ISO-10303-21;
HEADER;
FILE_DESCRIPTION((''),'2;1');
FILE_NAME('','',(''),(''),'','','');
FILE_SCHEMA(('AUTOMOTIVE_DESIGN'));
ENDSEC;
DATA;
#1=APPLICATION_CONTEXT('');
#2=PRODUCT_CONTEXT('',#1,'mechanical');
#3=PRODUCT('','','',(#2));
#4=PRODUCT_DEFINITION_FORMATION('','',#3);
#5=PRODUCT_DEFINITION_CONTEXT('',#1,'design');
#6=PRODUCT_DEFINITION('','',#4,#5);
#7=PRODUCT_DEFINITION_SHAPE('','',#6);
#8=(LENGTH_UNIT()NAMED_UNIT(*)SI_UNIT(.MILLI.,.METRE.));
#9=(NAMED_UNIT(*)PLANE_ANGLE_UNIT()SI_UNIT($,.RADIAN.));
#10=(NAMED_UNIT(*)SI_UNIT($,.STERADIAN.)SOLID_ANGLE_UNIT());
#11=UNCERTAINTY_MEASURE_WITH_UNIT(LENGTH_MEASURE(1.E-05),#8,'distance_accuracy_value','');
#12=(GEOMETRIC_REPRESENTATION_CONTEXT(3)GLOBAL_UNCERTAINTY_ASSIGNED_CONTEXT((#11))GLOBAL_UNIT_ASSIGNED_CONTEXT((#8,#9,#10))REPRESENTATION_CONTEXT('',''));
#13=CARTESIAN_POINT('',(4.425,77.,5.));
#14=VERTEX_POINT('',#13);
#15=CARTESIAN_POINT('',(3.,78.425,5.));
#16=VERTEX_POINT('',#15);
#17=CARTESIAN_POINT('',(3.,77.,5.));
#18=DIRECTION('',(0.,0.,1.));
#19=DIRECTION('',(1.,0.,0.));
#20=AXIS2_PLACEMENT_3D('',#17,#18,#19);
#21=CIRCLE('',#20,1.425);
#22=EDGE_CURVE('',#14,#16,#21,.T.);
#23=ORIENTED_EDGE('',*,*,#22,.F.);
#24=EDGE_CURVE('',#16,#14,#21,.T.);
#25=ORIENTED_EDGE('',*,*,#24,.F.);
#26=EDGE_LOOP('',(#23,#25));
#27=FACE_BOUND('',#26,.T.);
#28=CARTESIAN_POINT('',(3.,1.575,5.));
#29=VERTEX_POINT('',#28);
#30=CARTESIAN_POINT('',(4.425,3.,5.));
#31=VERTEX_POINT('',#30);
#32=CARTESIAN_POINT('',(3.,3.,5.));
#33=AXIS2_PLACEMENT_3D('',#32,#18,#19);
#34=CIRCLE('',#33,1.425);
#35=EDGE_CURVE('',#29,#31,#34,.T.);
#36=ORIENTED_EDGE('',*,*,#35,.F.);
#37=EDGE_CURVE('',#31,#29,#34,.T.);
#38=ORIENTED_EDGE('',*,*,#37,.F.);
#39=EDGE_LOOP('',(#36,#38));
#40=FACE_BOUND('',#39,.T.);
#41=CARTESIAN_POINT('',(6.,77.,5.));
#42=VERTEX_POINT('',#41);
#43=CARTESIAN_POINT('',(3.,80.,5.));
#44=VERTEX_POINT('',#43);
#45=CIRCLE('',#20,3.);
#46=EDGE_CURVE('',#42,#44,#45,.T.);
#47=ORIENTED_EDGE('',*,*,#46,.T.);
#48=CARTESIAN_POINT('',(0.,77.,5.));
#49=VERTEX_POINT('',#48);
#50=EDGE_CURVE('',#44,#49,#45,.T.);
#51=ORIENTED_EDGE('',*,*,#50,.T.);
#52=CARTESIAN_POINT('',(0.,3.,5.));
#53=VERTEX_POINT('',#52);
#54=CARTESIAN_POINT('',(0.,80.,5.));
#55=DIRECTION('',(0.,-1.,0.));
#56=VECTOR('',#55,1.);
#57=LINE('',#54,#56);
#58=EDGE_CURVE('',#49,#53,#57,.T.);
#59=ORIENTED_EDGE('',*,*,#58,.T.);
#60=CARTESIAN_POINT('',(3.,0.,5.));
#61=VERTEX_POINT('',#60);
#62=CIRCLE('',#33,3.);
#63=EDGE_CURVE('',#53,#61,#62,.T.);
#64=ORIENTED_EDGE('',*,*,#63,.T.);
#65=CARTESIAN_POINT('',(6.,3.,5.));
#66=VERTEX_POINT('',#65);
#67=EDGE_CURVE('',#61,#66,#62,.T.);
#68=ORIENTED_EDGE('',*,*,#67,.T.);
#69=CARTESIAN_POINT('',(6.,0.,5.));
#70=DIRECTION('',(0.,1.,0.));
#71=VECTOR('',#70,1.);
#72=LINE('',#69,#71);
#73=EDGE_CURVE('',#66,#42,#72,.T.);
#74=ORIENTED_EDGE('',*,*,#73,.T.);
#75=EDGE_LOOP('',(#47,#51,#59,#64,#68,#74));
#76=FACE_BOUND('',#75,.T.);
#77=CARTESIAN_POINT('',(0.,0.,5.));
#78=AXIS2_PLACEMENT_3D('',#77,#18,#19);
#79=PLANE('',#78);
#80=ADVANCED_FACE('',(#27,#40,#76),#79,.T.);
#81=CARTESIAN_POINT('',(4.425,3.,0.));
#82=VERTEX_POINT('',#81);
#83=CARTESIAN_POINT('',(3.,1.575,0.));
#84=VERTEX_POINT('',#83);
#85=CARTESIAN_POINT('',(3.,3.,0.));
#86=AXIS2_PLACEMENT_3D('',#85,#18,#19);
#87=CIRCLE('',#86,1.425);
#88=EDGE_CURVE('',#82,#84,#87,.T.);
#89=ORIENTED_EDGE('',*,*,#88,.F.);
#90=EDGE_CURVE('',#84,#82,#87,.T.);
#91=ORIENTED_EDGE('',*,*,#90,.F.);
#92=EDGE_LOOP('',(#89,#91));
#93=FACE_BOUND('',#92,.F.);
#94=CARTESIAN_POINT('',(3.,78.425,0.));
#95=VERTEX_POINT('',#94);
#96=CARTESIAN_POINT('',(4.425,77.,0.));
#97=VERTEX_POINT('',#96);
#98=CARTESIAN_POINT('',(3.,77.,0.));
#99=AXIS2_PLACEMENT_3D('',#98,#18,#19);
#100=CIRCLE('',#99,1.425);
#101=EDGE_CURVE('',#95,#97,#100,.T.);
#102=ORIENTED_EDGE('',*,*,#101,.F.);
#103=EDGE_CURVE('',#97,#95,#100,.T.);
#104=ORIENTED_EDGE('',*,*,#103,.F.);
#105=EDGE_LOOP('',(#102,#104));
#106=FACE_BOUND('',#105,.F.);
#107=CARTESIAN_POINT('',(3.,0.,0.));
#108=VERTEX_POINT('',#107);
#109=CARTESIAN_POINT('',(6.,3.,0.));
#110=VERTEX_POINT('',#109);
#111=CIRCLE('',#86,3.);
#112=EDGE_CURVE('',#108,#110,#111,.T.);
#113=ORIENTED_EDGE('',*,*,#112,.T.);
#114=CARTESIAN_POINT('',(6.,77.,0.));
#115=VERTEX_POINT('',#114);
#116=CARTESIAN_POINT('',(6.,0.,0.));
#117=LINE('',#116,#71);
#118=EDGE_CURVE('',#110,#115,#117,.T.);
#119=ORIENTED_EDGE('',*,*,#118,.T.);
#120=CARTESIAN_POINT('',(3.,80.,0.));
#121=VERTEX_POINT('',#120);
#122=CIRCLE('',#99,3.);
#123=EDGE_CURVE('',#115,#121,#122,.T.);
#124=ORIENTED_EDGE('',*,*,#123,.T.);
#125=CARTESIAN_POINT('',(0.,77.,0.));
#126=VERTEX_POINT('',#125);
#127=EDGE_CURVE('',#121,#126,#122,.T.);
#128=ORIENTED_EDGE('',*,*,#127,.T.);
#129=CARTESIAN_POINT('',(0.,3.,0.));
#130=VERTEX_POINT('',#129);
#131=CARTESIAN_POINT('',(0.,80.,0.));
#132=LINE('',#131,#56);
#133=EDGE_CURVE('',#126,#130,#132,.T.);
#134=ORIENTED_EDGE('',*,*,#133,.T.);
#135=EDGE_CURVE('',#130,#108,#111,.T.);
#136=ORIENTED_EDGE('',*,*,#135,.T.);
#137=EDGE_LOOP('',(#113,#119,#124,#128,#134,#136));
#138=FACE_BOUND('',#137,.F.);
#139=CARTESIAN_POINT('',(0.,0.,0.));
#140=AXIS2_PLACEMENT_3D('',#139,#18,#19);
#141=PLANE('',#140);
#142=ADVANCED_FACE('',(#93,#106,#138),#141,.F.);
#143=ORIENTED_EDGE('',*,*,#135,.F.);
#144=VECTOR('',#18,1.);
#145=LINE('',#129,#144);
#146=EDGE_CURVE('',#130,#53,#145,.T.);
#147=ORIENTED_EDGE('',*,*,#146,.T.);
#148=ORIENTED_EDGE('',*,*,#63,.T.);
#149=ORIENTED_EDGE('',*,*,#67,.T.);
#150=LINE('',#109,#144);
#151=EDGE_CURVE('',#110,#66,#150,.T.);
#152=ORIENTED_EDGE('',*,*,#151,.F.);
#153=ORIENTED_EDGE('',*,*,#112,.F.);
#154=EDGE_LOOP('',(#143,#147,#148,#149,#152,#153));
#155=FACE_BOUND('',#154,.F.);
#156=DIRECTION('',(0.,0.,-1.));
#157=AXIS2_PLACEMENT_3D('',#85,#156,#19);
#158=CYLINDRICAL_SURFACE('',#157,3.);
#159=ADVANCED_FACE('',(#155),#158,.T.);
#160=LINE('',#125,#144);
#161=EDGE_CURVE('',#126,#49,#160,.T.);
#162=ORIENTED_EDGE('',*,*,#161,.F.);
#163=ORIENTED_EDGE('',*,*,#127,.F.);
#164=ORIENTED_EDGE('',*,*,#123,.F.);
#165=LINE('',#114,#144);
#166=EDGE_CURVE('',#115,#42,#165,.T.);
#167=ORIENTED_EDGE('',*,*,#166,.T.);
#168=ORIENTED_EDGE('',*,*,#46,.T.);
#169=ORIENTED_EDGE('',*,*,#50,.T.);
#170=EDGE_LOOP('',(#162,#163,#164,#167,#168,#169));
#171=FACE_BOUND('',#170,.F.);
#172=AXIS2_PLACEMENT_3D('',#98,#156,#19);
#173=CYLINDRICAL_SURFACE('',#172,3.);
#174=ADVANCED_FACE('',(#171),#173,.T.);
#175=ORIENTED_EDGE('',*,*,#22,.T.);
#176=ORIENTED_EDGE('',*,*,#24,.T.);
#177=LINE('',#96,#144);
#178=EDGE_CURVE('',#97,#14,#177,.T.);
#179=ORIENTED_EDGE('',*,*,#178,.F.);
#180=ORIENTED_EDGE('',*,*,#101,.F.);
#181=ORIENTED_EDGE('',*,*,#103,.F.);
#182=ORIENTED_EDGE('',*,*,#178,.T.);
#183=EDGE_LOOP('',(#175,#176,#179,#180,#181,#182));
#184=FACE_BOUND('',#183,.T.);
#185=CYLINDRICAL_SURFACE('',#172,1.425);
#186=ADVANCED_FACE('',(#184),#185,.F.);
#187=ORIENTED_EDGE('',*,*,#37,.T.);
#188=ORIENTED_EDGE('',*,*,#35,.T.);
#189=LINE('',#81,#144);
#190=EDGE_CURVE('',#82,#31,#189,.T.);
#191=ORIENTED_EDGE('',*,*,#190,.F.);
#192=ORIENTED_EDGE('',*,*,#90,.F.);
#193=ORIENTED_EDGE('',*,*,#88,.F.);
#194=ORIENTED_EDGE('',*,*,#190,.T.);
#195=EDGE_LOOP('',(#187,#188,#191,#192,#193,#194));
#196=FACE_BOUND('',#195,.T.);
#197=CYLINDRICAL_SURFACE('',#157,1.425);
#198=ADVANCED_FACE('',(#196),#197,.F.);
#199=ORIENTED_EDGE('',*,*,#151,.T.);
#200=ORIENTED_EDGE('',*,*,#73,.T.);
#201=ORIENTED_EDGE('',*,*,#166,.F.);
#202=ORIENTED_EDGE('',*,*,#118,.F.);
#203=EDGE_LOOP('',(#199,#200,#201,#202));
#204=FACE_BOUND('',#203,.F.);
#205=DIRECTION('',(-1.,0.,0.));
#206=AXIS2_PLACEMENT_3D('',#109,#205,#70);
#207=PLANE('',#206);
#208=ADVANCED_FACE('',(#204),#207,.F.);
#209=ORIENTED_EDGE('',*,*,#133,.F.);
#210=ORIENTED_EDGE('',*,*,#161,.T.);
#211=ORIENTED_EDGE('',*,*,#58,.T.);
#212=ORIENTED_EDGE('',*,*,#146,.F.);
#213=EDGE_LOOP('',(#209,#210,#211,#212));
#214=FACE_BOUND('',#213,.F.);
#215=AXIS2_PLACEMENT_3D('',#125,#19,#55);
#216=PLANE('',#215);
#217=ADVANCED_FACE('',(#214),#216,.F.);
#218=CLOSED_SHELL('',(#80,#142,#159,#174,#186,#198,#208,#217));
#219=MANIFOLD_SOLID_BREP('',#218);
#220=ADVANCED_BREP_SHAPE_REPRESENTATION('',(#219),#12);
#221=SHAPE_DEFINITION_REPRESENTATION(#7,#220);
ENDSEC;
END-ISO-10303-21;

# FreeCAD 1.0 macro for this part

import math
import FreeCAD as App
import Part
import Sketcher
Q = App.Units.Quantity

doc = App.newDocument("Part")
body = doc.addObject("PartDesign::Body", "Body")

# Sketch on XY plane
sketch1 = body.newObject("Sketcher::SketchObject", "Sketch")
sketch1.AttachmentSupport = (doc.getObject("XY_Plane"), [""])
sketch1.MapMode = "FlatFace"
sketch1.addGeometry(Part.ArcOfCircle(Part.Circle(App.Vector(3, 3, 0), App.Vector(0, 0, 1), 3), math.radians(180), math.radians(270)), False)
sketch1.addGeometry(Part.ArcOfCircle(Part.Circle(App.Vector(3, 3, 0), App.Vector(0, 0, 1), 3), math.radians(-90), math.radians(0)), False)
sketch1.addGeometry(Part.LineSegment(App.Vector(6, 3, 0), App.Vector(6, 77, 0)), False)
sketch1.addGeometry(Part.ArcOfCircle(Part.Circle(App.Vector(3, 77, 0), App.Vector(0, 0, 1), 3), math.radians(0), math.radians(90)), False)
sketch1.addGeometry(Part.ArcOfCircle(Part.Circle(App.Vector(3, 77, 0), App.Vector(0, 0, 1), 3), math.radians(90), math.radians(180)), False)
sketch1.addGeometry(Part.LineSegment(App.Vector(0, 77, 0), App.Vector(0, 3, 0)), False)
sketch1.addGeometry(Part.Circle(App.Vector(3, 3, 0), App.Vector(0, 0, 1), 1.4), False)
sketch1.addGeometry(Part.Circle(App.Vector(3, 77, 0), App.Vector(0, 0, 1), 1.4), False)
sketch1.addConstraint(Sketcher.Constraint("Tangent", 0, 2, 1, 1))
sketch1.addConstraint(Sketcher.Constraint("Tangent", 1, 2, 2, 1))
sketch1.addConstraint(Sketcher.Constraint("Tangent", 2, 2, 3, 1))
sketch1.addConstraint(Sketcher.Constraint("Tangent", 3, 2, 4, 1))
sketch1.addConstraint(Sketcher.Constraint("Tangent", 4, 2, 5, 1))
sketch1.addConstraint(Sketcher.Constraint("Tangent", 5, 2, 0, 1))
sketch1.addConstraint(Sketcher.Constraint("Vertical", 2))
sketch1.addConstraint(Sketcher.Constraint("Vertical", 5))
sketch1.addConstraint(Sketcher.Constraint("Coincident", 6, 3, 0, 3))
sketch1.addConstraint(Sketcher.Constraint("Coincident", 7, 3, 3, 3))
sketch1.addConstraint(Sketcher.Constraint("Equal", 0, 1))
sketch1.addConstraint(Sketcher.Constraint("Equal", 1, 3))
sketch1.addConstraint(Sketcher.Constraint("Equal", 6, 7))
sketch1.addConstraint(Sketcher.Constraint("PointOnObject", 0, 2, -1))
sketch1.addConstraint(Sketcher.Constraint("PointOnObject", 4, 2, -2))
sketch1.addConstraint(Sketcher.Constraint("Vertical", 7, 3, 0, 2))
sketch1.addConstraint(Sketcher.Constraint("Vertical", 0, 2, 3, 2))
sketch1.addConstraint(Sketcher.Constraint("Radius", 0, Q("3 mm")))
sketch1.addConstraint(Sketcher.Constraint("Diameter", 6, Q("2.85 mm")))
sketch1.addConstraint(Sketcher.Constraint("DistanceY", -1, 1, 3, 2, Q("80 mm")))
pad1 = body.newObject("PartDesign::Pad", "Pad")
pad1.Profile = sketch1
pad1.Length = 5

doc.recompute()
